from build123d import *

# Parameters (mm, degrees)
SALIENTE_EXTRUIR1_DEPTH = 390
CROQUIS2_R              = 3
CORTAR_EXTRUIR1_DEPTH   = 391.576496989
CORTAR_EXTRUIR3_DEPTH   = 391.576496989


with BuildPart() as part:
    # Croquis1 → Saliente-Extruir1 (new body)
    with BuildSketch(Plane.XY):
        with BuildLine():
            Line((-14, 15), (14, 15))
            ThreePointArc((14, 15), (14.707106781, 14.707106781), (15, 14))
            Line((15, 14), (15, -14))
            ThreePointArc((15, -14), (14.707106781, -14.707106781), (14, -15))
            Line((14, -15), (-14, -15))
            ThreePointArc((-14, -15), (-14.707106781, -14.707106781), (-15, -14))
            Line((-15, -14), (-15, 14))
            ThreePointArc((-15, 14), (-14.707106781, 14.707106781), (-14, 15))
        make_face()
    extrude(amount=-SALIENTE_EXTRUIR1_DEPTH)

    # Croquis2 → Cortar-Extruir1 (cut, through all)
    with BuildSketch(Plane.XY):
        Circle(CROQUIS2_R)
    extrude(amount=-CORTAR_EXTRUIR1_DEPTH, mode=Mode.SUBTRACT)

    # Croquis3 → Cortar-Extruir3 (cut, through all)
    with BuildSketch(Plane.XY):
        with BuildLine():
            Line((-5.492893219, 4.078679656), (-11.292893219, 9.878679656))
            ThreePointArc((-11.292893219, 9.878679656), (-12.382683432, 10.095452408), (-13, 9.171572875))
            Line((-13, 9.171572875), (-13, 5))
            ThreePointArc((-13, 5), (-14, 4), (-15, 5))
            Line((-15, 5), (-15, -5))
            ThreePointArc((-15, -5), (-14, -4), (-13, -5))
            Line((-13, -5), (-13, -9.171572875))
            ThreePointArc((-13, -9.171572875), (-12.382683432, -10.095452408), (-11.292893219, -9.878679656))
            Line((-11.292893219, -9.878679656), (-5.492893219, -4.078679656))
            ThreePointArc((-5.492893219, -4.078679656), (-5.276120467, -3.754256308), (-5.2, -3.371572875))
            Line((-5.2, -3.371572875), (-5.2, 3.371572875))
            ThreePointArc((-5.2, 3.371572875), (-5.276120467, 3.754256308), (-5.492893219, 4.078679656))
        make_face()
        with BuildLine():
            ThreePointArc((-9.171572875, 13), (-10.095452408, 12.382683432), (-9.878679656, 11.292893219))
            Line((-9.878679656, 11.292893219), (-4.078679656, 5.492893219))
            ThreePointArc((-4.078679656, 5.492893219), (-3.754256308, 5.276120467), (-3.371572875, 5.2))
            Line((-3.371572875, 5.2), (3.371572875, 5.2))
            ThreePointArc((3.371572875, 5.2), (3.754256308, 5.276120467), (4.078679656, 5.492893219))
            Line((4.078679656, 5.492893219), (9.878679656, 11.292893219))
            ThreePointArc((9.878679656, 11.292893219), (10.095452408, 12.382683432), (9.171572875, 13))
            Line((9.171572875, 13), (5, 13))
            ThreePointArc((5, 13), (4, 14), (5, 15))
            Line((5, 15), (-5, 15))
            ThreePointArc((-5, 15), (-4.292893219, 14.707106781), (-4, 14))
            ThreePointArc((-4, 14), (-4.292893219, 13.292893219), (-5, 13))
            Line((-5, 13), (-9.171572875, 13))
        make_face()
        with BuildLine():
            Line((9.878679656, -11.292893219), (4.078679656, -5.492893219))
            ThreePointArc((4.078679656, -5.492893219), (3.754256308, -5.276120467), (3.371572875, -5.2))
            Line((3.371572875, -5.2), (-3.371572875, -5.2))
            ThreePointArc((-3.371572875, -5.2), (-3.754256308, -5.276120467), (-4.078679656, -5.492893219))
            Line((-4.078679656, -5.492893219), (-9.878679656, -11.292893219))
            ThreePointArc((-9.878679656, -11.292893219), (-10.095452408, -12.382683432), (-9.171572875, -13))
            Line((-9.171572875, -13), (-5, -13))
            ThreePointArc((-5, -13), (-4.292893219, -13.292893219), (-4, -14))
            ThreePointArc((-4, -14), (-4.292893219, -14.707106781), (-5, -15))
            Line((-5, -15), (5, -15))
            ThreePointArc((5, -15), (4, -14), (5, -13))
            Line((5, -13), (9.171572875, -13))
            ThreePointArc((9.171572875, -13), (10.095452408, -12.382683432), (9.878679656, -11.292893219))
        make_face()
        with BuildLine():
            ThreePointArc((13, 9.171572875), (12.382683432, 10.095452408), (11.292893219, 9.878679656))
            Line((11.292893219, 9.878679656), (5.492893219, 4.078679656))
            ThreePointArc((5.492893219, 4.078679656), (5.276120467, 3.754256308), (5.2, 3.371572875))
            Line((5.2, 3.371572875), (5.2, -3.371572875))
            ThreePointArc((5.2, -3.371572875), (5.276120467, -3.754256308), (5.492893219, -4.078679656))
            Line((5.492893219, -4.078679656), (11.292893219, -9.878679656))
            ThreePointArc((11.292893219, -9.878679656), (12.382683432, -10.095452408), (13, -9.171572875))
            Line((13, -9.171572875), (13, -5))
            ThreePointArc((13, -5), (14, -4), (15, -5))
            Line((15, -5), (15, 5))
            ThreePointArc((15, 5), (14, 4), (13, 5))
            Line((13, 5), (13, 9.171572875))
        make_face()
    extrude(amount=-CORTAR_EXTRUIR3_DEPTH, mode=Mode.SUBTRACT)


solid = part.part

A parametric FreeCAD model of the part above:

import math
import FreeCAD as App
import Part
import Sketcher

V = App.Vector

doc = App.newDocument("Part")
params = doc.addObject("Spreadsheet::Sheet", "Params")
for row, (alias, value) in enumerate([
    ("sketch1_radius", "1 mm"),
    ("sketch1_width", "28 mm"),
    ("pad1_length", "390 mm"),
    ("sketch2_diameter", "6 mm"),
    ("sketch3_radius", "1 mm"),
    ("sketch3_width", "10 mm"),
], start=1):
    params.set(f"A{row}", alias)
    params.set(f"B{row}", "=" + value)
    params.setAlias(f"B{row}", alias)

body = doc.addObject("PartDesign::Body", "Body")

# Sketch on XY plane
sketch1 = body.newObject("Sketcher::SketchObject", "Sketch")
sketch1.AttachmentSupport = (doc.getObject("XY_Plane"), [""])
sketch1.MapMode = "FlatFace"
sketch1.addGeometry(Part.LineSegment(V(14, 15, 0), V(-14, 15, 0)), False)
sketch1.addGeometry(Part.ArcOfCircle(Part.Circle(V(-14, 14, 0), V(0, 0, 1), 1), math.radians(90), math.radians(180)), False)
sketch1.addGeometry(Part.LineSegment(V(-15, 14, 0), V(-15, -14, 0)), False)
sketch1.addGeometry(Part.ArcOfCircle(Part.Circle(V(-14, -14, 0), V(0, 0, 1), 1), math.radians(-180), math.radians(-90)), False)
sketch1.addGeometry(Part.LineSegment(V(-14, -15, 0), V(14, -15, 0)), False)
sketch1.addGeometry(Part.ArcOfCircle(Part.Circle(V(14, -14, 0), V(0, 0, 1), 1), math.radians(-90), math.radians(0)), False)
sketch1.addGeometry(Part.LineSegment(V(15, -14, 0), V(15, 14, 0)), False)
sketch1.addGeometry(Part.ArcOfCircle(Part.Circle(V(14, 14, 0), V(0, 0, 1), 1), math.radians(0), math.radians(90)), False)
sketch1.addConstraint(Sketcher.Constraint("Tangent", 0, 2, 1, 1))
sketch1.addConstraint(Sketcher.Constraint("Tangent", 1, 2, 2, 1))
sketch1.addConstraint(Sketcher.Constraint("Tangent", 2, 2, 3, 1))
sketch1.addConstraint(Sketcher.Constraint("Tangent", 3, 2, 4, 1))
sketch1.addConstraint(Sketcher.Constraint("Tangent", 4, 2, 5, 1))
sketch1.addConstraint(Sketcher.Constraint("Tangent", 5, 2, 6, 1))
sketch1.addConstraint(Sketcher.Constraint("Tangent", 6, 2, 7, 1))
sketch1.addConstraint(Sketcher.Constraint("Tangent", 7, 2, 0, 1))
sketch1.addConstraint(Sketcher.Constraint("Horizontal", 0))
sketch1.addConstraint(Sketcher.Constraint("Vertical", 2))
sketch1.addConstraint(Sketcher.Constraint("Horizontal", 4))
sketch1.addConstraint(Sketcher.Constraint("Vertical", 6))
sketch1.addConstraint(Sketcher.Constraint("Equal", 1, 3))
sketch1.addConstraint(Sketcher.Constraint("Equal", 3, 5))
sketch1.addConstraint(Sketcher.Constraint("Equal", 5, 7))
sketch1.addConstraint(Sketcher.Constraint("Symmetric", 1, 3, 5, 3, -1, 1))
sketch1.addConstraint(Sketcher.Constraint("Equal", 4, 2))
sketch1.addConstraint(Sketcher.Constraint("Radius", 1, 1.0))
sketch1.addConstraint(Sketcher.Constraint("DistanceX", 0, 2, 0, 1, 28.0))
sketch1.setExpression("Constraints[17]", "Params.sketch1_radius")
sketch1.setExpression("Constraints[18]", "Params.sketch1_width")
pad1 = body.newObject("PartDesign::Pad", "Pad")
pad1.Profile = sketch1
pad1.setExpression("Length", "Params.pad1_length")
pad1.Reversed = True

# Sketch on XY plane
sketch2 = body.newObject("Sketcher::SketchObject", "Sketch001")
sketch2.AttachmentSupport = (doc.getObject("XY_Plane"), [""])
sketch2.MapMode = "FlatFace"
sketch2.addGeometry(Part.Circle(V(0, 0, 0), V(0, 0, 1), 3), False)
sketch2.addConstraint(Sketcher.Constraint("Coincident", 0, 3, -1, 1))
sketch2.addConstraint(Sketcher.Constraint("Diameter", 0, 6.0))
sketch2.setExpression("Constraints[1]", "Params.sketch2_diameter")
pocket1 = body.newObject("PartDesign::Pocket", "Pocket")
pocket1.Profile = sketch2
pocket1.Type = "ThroughAll"

# Sketch on XY plane
sketch3 = body.newObject("Sketcher::SketchObject", "Sketch002")
sketch3.AttachmentSupport = (doc.getObject("XY_Plane"), [""])
sketch3.MapMode = "FlatFace"
sketch3.addGeometry(Part.LineSegment(V(-5.5, 4.1, 0), V(-11.3, 9.9, 0)), False)
sketch3.addGeometry(Part.ArcOfCircle(Part.Circle(V(-12, 9.2, 0), V(0, 0, 1), 1), math.radians(45), math.radians(180)), False)
sketch3.addGeometry(Part.LineSegment(V(-13, 9.2, 0), V(-13, 5, 0)), False)
sketch3.addGeometry(Part.ArcOfCircle(Part.Circle(V(-14, 5, 0), V(0, 0, 1), 1), math.radians(180), math.radians(360)), False)
sketch3.addGeometry(Part.LineSegment(V(-15, 5, 0), V(-15, -5, 0)), False)
sketch3.addGeometry(Part.ArcOfCircle(Part.Circle(V(-14, -5, 0), V(0, 0, 1), 1), math.radians(0), math.radians(180)), False)
sketch3.addGeometry(Part.LineSegment(V(-13, -5, 0), V(-13, -9.2, 0)), False)
sketch3.addGeometry(Part.ArcOfCircle(Part.Circle(V(-12, -9.2, 0), V(0, 0, 1), 1), math.radians(180), math.radians(315)), False)
sketch3.addGeometry(Part.LineSegment(V(-11.3, -9.9, 0), V(-5.5, -4.1, 0)), False)
sketch3.addGeometry(Part.ArcOfCircle(Part.Circle(V(-6.2, -3.4, 0), V(0, 0, 1), 1), math.radians(-45), math.radians(0)), False)
sketch3.addGeometry(Part.LineSegment(V(-5.2, -3.4, 0), V(-5.2, 3.4, 0)), False)
sketch3.addGeometry(Part.ArcOfCircle(Part.Circle(V(-6.2, 3.4, 0), V(0, 0, 1), 1), math.radians(0), math.radians(45)), False)
sketch3.addGeometry(Part.ArcOfCircle(Part.Circle(V(-9.2, 12, 0), V(0, 0, 1), 1), math.radians(90), math.radians(225)), False)
sketch3.addGeometry(Part.LineSegment(V(-9.9, 11.3, 0), V(-4.1, 5.5, 0)), False)
sketch3.addGeometry(Part.ArcOfCircle(Part.Circle(V(-3.4, 6.2, 0), V(0, 0, 1), 1), math.radians(-135), math.radians(-90)), False)
sketch3.addGeometry(Part.LineSegment(V(-3.4, 5.2, 0), V(3.4, 5.2, 0)), False)
sketch3.addGeometry(Part.ArcOfCircle(Part.Circle(V(3.4, 6.2, 0), V(0, 0, 1), 1), math.radians(-90), math.radians(-45)), False)
sketch3.addGeometry(Part.LineSegment(V(4.1, 5.5, 0), V(9.9, 11.3, 0)), False)
sketch3.addGeometry(Part.ArcOfCircle(Part.Circle(V(9.2, 12, 0), V(0, 0, 1), 1), math.radians(-45), math.radians(90)), False)
sketch3.addGeometry(Part.LineSegment(V(9.2, 13, 0), V(5, 13, 0)), False)
sketch3.addGeometry(Part.ArcOfCircle(Part.Circle(V(5, 14, 0), V(0, 0, 1), 1), math.radians(90), math.radians(270)), False)
sketch3.addGeometry(Part.LineSegment(V(5, 15, 0), V(-5, 15, 0)), False)
sketch3.addGeometry(Part.ArcOfCircle(Part.Circle(V(-5, 14, 0), V(0, 0, 1), 1), math.radians(0), math.radians(90)), False)
sketch3.addGeometry(Part.ArcOfCircle(Part.Circle(V(-5, 14, 0), V(0, 0, 1), 1), math.radians(-90), math.radians(0)), False)
sketch3.addGeometry(Part.LineSegment(V(-5, 13, 0), V(-9.2, 13, 0)), False)
sketch3.addGeometry(Part.LineSegment(V(9.9, -11.3, 0), V(4.1, -5.5, 0)), False)
sketch3.addGeometry(Part.ArcOfCircle(Part.Circle(V(3.4, -6.2, 0), V(0, 0, 1), 1), math.radians(45), math.radians(90)), False)
sketch3.addGeometry(Part.LineSegment(V(3.4, -5.2, 0), V(-3.4, -5.2, 0)), False)
sketch3.addGeometry(Part.ArcOfCircle(Part.Circle(V(-3.4, -6.2, 0), V(0, 0, 1), 1), math.radians(90), math.radians(135)), False)
sketch3.addGeometry(Part.LineSegment(V(-4.1, -5.5, 0), V(-9.9, -11.3, 0)), False)
sketch3.addGeometry(Part.ArcOfCircle(Part.Circle(V(-9.2, -12, 0), V(0, 0, 1), 1), math.radians(135), math.radians(270)), False)
sketch3.addGeometry(Part.LineSegment(V(-9.2, -13, 0), V(-5, -13, 0)), False)
sketch3.addGeometry(Part.ArcOfCircle(Part.Circle(V(-5, -14, 0), V(0, 0, 1), 1), math.radians(0), math.radians(90)), False)
sketch3.addGeometry(Part.ArcOfCircle(Part.Circle(V(-5, -14, 0), V(0, 0, 1), 1), math.radians(-90), math.radians(0)), False)
sketch3.addGeometry(Part.LineSegment(V(-5, -15, 0), V(5, -15, 0)), False)
sketch3.addGeometry(Part.ArcOfCircle(Part.Circle(V(5, -14, 0), V(0, 0, 1), 1), math.radians(90), math.radians(270)), False)
sketch3.addGeometry(Part.LineSegment(V(5, -13, 0), V(9.2, -13, 0)), False)
sketch3.addGeometry(Part.ArcOfCircle(Part.Circle(V(9.2, -12, 0), V(0, 0, 1), 1), math.radians(-90), math.radians(45)), False)
sketch3.addGeometry(Part.ArcOfCircle(Part.Circle(V(12, 9.2, 0), V(0, 0, 1), 1), math.radians(0), math.radians(135)), False)
sketch3.addGeometry(Part.LineSegment(V(11.3, 9.9, 0), V(5.5, 4.1, 0)), False)
sketch3.addGeometry(Part.ArcOfCircle(Part.Circle(V(6.2, 3.4, 0), V(0, 0, 1), 1), math.radians(135), math.radians(180)), False)
sketch3.addGeometry(Part.LineSegment(V(5.2, 3.4, 0), V(5.2, -3.4, 0)), False)
sketch3.addGeometry(Part.ArcOfCircle(Part.Circle(V(6.2, -3.4, 0), V(0, 0, 1), 1), math.radians(180), math.radians(225)), False)
sketch3.addGeometry(Part.LineSegment(V(5.5, -4.1, 0), V(11.3, -9.9, 0)), False)
sketch3.addGeometry(Part.ArcOfCircle(Part.Circle(V(12, -9.2, 0), V(0, 0, 1), 1), math.radians(-135), math.radians(0)), False)
sketch3.addGeometry(Part.LineSegment(V(13, -9.2, 0), V(13, -5, 0)), False)
sketch3.addGeometry(Part.ArcOfCircle(Part.Circle(V(14, -5, 0), V(0, 0, 1), 1), math.radians(0), math.radians(180)), False)
sketch3.addGeometry(Part.LineSegment(V(15, -5, 0), V(15, 5, 0)), False)
sketch3.addGeometry(Part.ArcOfCircle(Part.Circle(V(14, 5, 0), V(0, 0, 1), 1), math.radians(180), math.radians(360)), False)
sketch3.addGeometry(Part.LineSegment(V(13, 5, 0), V(13, 9.2, 0)), False)
sketch3.addConstraint(Sketcher.Constraint("Tangent", 0, 2, 1, 1))
sketch3.addConstraint(Sketcher.Constraint("Tangent", 1, 2, 2, 1))
sketch3.addConstraint(Sketcher.Constraint("Tangent", 2, 2, 3, 2))
sketch3.addConstraint(Sketcher.Constraint("Tangent", 3, 1, 4, 1))
sketch3.addConstraint(Sketcher.Constraint("Tangent", 4, 2, 5, 2))
sketch3.addConstraint(Sketcher.Constraint("Tangent", 5, 1, 6, 1))
sketch3.addConstraint(Sketcher.Constraint("Tangent", 6, 2, 7, 1))
sketch3.addConstraint(Sketcher.Constraint("Tangent", 7, 2, 8, 1))
sketch3.addConstraint(Sketcher.Constraint("Tangent", 8, 2, 9, 1))
sketch3.addConstraint(Sketcher.Constraint("Tangent", 9, 2, 10, 1))
sketch3.addConstraint(Sketcher.Constraint("Tangent", 10, 2, 11, 1))
sketch3.addConstraint(Sketcher.Constraint("Tangent", 11, 2, 0, 1))
sketch3.addConstraint(Sketcher.Constraint("Tangent", 12, 2, 13, 1))
sketch3.addConstraint(Sketcher.Constraint("Tangent", 13, 2, 14, 1))
sketch3.addConstraint(Sketcher.Constraint("Tangent", 14, 2, 15, 1))
sketch3.addConstraint(Sketcher.Constraint("Tangent", 15, 2, 16, 1))
sketch3.addConstraint(Sketcher.Constraint("Tangent", 16, 2, 17, 1))
sketch3.addConstraint(Sketcher.Constraint("Tangent", 17, 2, 18, 1))
sketch3.addConstraint(Sketcher.Constraint("Tangent", 18, 2, 19, 1))
sketch3.addConstraint(Sketcher.Constraint("Tangent", 19, 2, 20, 2))
sketch3.addConstraint(Sketcher.Constraint("Tangent", 20, 1, 21, 1))
sketch3.addConstraint(Sketcher.Constraint("Tangent", 21, 2, 22, 2))
sketch3.addConstraint(Sketcher.Constraint("Tangent", 22, 1, 23, 2))
sketch3.addConstraint(Sketcher.Constraint("Tangent", 23, 1, 24, 1))
sketch3.addConstraint(Sketcher.Constraint("Tangent", 24, 2, 12, 1))
sketch3.addConstraint(Sketcher.Constraint("Tangent", 25, 2, 26, 1))
sketch3.addConstraint(Sketcher.Constraint("Tangent", 26, 2, 27, 1))
sketch3.addConstraint(Sketcher.Constraint("Tangent", 27, 2, 28, 1))
sketch3.addConstraint(Sketcher.Constraint("Tangent", 28, 2, 29, 1))
sketch3.addConstraint(Sketcher.Constraint("Tangent", 29, 2, 30, 1))
sketch3.addConstraint(Sketcher.Constraint("Tangent", 30, 2, 31, 1))
sketch3.addConstraint(Sketcher.Constraint("Tangent", 31, 2, 32, 2))
sketch3.addConstraint(Sketcher.Constraint("Tangent", 32, 1, 33, 2))
sketch3.addConstraint(Sketcher.Constraint("Tangent", 33, 1, 34, 1))
sketch3.addConstraint(Sketcher.Constraint("Tangent", 34, 2, 35, 2))
sketch3.addConstraint(Sketcher.Constraint("Tangent", 35, 1, 36, 1))
sketch3.addConstraint(Sketcher.Constraint("Tangent", 36, 2, 37, 1))
sketch3.addConstraint(Sketcher.Constraint("Tangent", 37, 2, 25, 1))
sketch3.addConstraint(Sketcher.Constraint("Tangent", 38, 2, 39, 1))
sketch3.addConstraint(Sketcher.Constraint("Tangent", 39, 2, 40, 1))
sketch3.addConstraint(Sketcher.Constraint("Tangent", 40, 2, 41, 1))
sketch3.addConstraint(Sketcher.Constraint("Tangent", 41, 2, 42, 1))
sketch3.addConstraint(Sketcher.Constraint("Tangent", 42, 2, 43, 1))
sketch3.addConstraint(Sketcher.Constraint("Tangent", 43, 2, 44, 1))
sketch3.addConstraint(Sketcher.Constraint("Tangent", 44, 2, 45, 1))
sketch3.addConstraint(Sketcher.Constraint("Tangent", 45, 2, 46, 2))
sketch3.addConstraint(Sketcher.Constraint("Tangent", 46, 1, 47, 1))
sketch3.addConstraint(Sketcher.Constraint("Tangent", 47, 2, 48, 2))
sketch3.addConstraint(Sketcher.Constraint("Tangent", 48, 1, 49, 1))
sketch3.addConstraint(Sketcher.Constraint("Tangent", 49, 2, 38, 1))
sketch3.addConstraint(Sketcher.Constraint("Vertical", 2))
sketch3.addConstraint(Sketcher.Constraint("Vertical", 4))
sketch3.addConstraint(Sketcher.Constraint("Vertical", 6))
sketch3.addConstraint(Sketcher.Constraint("Vertical", 10))
sketch3.addConstraint(Sketcher.Constraint("Horizontal", 15))
sketch3.addConstraint(Sketcher.Constraint("Horizontal", 19))
sketch3.addConstraint(Sketcher.Constraint("Horizontal", 21))
sketch3.addConstraint(Sketcher.Constraint("Horizontal", 24))
sketch3.addConstraint(Sketcher.Constraint("Horizontal", 27))
sketch3.addConstraint(Sketcher.Constraint("Horizontal", 31))
sketch3.addConstraint(Sketcher.Constraint("Horizontal", 34))
sketch3.addConstraint(Sketcher.Constraint("Horizontal", 36))
sketch3.addConstraint(Sketcher.Constraint("Vertical", 41))
sketch3.addConstraint(Sketcher.Constraint("Vertical", 45))
sketch3.addConstraint(Sketcher.Constraint("Vertical", 47))
sketch3.addConstraint(Sketcher.Constraint("Vertical", 49))
sketch3.addConstraint(Sketcher.Constraint("Equal", 1, 3))
sketch3.addConstraint(Sketcher.Constraint("Equal", 3, 5))
sketch3.addConstraint(Sketcher.Constraint("Equal", 5, 7))
sketch3.addConstraint(Sketcher.Constraint("Equal", 7, 9))
sketch3.addConstraint(Sketcher.Constraint("Equal", 9, 11))
sketch3.addConstraint(Sketcher.Constraint("Equal", 11, 12))
sketch3.addConstraint(Sketcher.Constraint("Equal", 12, 14))
sketch3.addConstraint(Sketcher.Constraint("Equal", 14, 16))
sketch3.addConstraint(Sketcher.Constraint("Equal", 16, 18))
sketch3.addConstraint(Sketcher.Constraint("Equal", 18, 20))
sketch3.addConstraint(Sketcher.Constraint("Equal", 20, 22))
sketch3.addConstraint(Sketcher.Constraint("Equal", 22, 23))
sketch3.addConstraint(Sketcher.Constraint("Equal", 23, 26))
sketch3.addConstraint(Sketcher.Constraint("Equal", 26, 28))
sketch3.addConstraint(Sketcher.Constraint("Equal", 28, 30))
sketch3.addConstraint(Sketcher.Constraint("Equal", 30, 32))
sketch3.addConstraint(Sketcher.Constraint("Equal", 32, 33))
sketch3.addConstraint(Sketcher.Constraint("Equal", 33, 35))
sketch3.addConstraint(Sketcher.Constraint("Equal", 35, 37))
sketch3.addConstraint(Sketcher.Constraint("Equal", 37, 38))
sketch3.addConstraint(Sketcher.Constraint("Equal", 38, 40))
sketch3.addConstraint(Sketcher.Constraint("Equal", 40, 42))
sketch3.addConstraint(Sketcher.Constraint("Equal", 42, 44))
sketch3.addConstraint(Sketcher.Constraint("Equal", 44, 46))
sketch3.addConstraint(Sketcher.Constraint("Equal", 46, 48))
sketch3.addConstraint(Sketcher.Constraint("Symmetric", 14, 3, 26, 3, -1, 1))
sketch3.addConstraint(Sketcher.Constraint("Symmetric", 18, 3, 30, 3, -1, 1))
sketch3.addConstraint(Sketcher.Constraint("Symmetric", 7, 3, 38, 3, -1, 1))
sketch3.addConstraint(Sketcher.Constraint("Symmetric", 9, 3, 40, 3, -1, 1))
sketch3.addConstraint(Sketcher.Constraint("Symmetric", 11, 2, 42, 2, -1, 1))
sketch3.addConstraint(Sketcher.Constraint("Symmetric", 13, 2, 16, 2, -2))
sketch3.addConstraint(Sketcher.Constraint("Symmetric", 25, 2, 28, 2, -2))
sketch3.addConstraint(Sketcher.Constraint("Symmetric", 0, 2, 38, 2, -2))
sketch3.addConstraint(Sketcher.Constraint("Symmetric", 22, 1, 32, 1, -1))
sketch3.addConstraint(Sketcher.Constraint("Perpendicular", 0, 8))
sketch3.addConstraint(Sketcher.Constraint("Perpendicular", 8, 13))
sketch3.addConstraint(Sketcher.Constraint("Horizontal", 5, 3, 46, 3))
sketch3.addConstraint(Sketcher.Constraint("Horizontal", 3, 3, 48, 3))
sketch3.addConstraint(Sketcher.Constraint("Horizontal", 23, 3, 22, 1))
sketch3.addConstraint(Sketcher.Constraint("Vertical", 20, 3, 35, 3))
sketch3.addConstraint(Sketcher.Constraint("Equal", 19, 24))
sketch3.addConstraint(Sketcher.Constraint("Equal", 36, 2))
sketch3.addConstraint(Sketcher.Constraint("Equal", 34, 4))
sketch3.addConstraint(Sketcher.Constraint("Equal", 2, 6))
sketch3.addConstraint(Sketcher.Constraint("Equal", 27, 10))
sketch3.addConstraint(Sketcher.Constraint("Radius", 1, 1.0))
sketch3.addConstraint(Sketcher.Constraint("DistanceX", 21, 2, 21, 1, 10.0))
sketch3.addConstraint(Sketcher.Constraint("DistanceX", 1, 3, -1, 1, 12.0))
sketch3.addConstraint(Sketcher.Constraint("DistanceY", -1, 1, 12, 3, 12.0))
sketch3.addConstraint(Sketcher.Constraint("DistanceX", 9, 3, -1, 1, 6.2))
sketch3.addConstraint(Sketcher.Constraint("DistanceX", 15, 1, 15, 2, 6.743146))
sketch3.setExpression("Constraints[111]", "Params.sketch3_radius")
sketch3.setExpression("Constraints[112]", "Params.sketch3_width")
pocket2 = body.newObject("PartDesign::Pocket", "Pocket001")
pocket2.Profile = sketch3
pocket2.Type = "ThroughAll"

doc.recompute()
